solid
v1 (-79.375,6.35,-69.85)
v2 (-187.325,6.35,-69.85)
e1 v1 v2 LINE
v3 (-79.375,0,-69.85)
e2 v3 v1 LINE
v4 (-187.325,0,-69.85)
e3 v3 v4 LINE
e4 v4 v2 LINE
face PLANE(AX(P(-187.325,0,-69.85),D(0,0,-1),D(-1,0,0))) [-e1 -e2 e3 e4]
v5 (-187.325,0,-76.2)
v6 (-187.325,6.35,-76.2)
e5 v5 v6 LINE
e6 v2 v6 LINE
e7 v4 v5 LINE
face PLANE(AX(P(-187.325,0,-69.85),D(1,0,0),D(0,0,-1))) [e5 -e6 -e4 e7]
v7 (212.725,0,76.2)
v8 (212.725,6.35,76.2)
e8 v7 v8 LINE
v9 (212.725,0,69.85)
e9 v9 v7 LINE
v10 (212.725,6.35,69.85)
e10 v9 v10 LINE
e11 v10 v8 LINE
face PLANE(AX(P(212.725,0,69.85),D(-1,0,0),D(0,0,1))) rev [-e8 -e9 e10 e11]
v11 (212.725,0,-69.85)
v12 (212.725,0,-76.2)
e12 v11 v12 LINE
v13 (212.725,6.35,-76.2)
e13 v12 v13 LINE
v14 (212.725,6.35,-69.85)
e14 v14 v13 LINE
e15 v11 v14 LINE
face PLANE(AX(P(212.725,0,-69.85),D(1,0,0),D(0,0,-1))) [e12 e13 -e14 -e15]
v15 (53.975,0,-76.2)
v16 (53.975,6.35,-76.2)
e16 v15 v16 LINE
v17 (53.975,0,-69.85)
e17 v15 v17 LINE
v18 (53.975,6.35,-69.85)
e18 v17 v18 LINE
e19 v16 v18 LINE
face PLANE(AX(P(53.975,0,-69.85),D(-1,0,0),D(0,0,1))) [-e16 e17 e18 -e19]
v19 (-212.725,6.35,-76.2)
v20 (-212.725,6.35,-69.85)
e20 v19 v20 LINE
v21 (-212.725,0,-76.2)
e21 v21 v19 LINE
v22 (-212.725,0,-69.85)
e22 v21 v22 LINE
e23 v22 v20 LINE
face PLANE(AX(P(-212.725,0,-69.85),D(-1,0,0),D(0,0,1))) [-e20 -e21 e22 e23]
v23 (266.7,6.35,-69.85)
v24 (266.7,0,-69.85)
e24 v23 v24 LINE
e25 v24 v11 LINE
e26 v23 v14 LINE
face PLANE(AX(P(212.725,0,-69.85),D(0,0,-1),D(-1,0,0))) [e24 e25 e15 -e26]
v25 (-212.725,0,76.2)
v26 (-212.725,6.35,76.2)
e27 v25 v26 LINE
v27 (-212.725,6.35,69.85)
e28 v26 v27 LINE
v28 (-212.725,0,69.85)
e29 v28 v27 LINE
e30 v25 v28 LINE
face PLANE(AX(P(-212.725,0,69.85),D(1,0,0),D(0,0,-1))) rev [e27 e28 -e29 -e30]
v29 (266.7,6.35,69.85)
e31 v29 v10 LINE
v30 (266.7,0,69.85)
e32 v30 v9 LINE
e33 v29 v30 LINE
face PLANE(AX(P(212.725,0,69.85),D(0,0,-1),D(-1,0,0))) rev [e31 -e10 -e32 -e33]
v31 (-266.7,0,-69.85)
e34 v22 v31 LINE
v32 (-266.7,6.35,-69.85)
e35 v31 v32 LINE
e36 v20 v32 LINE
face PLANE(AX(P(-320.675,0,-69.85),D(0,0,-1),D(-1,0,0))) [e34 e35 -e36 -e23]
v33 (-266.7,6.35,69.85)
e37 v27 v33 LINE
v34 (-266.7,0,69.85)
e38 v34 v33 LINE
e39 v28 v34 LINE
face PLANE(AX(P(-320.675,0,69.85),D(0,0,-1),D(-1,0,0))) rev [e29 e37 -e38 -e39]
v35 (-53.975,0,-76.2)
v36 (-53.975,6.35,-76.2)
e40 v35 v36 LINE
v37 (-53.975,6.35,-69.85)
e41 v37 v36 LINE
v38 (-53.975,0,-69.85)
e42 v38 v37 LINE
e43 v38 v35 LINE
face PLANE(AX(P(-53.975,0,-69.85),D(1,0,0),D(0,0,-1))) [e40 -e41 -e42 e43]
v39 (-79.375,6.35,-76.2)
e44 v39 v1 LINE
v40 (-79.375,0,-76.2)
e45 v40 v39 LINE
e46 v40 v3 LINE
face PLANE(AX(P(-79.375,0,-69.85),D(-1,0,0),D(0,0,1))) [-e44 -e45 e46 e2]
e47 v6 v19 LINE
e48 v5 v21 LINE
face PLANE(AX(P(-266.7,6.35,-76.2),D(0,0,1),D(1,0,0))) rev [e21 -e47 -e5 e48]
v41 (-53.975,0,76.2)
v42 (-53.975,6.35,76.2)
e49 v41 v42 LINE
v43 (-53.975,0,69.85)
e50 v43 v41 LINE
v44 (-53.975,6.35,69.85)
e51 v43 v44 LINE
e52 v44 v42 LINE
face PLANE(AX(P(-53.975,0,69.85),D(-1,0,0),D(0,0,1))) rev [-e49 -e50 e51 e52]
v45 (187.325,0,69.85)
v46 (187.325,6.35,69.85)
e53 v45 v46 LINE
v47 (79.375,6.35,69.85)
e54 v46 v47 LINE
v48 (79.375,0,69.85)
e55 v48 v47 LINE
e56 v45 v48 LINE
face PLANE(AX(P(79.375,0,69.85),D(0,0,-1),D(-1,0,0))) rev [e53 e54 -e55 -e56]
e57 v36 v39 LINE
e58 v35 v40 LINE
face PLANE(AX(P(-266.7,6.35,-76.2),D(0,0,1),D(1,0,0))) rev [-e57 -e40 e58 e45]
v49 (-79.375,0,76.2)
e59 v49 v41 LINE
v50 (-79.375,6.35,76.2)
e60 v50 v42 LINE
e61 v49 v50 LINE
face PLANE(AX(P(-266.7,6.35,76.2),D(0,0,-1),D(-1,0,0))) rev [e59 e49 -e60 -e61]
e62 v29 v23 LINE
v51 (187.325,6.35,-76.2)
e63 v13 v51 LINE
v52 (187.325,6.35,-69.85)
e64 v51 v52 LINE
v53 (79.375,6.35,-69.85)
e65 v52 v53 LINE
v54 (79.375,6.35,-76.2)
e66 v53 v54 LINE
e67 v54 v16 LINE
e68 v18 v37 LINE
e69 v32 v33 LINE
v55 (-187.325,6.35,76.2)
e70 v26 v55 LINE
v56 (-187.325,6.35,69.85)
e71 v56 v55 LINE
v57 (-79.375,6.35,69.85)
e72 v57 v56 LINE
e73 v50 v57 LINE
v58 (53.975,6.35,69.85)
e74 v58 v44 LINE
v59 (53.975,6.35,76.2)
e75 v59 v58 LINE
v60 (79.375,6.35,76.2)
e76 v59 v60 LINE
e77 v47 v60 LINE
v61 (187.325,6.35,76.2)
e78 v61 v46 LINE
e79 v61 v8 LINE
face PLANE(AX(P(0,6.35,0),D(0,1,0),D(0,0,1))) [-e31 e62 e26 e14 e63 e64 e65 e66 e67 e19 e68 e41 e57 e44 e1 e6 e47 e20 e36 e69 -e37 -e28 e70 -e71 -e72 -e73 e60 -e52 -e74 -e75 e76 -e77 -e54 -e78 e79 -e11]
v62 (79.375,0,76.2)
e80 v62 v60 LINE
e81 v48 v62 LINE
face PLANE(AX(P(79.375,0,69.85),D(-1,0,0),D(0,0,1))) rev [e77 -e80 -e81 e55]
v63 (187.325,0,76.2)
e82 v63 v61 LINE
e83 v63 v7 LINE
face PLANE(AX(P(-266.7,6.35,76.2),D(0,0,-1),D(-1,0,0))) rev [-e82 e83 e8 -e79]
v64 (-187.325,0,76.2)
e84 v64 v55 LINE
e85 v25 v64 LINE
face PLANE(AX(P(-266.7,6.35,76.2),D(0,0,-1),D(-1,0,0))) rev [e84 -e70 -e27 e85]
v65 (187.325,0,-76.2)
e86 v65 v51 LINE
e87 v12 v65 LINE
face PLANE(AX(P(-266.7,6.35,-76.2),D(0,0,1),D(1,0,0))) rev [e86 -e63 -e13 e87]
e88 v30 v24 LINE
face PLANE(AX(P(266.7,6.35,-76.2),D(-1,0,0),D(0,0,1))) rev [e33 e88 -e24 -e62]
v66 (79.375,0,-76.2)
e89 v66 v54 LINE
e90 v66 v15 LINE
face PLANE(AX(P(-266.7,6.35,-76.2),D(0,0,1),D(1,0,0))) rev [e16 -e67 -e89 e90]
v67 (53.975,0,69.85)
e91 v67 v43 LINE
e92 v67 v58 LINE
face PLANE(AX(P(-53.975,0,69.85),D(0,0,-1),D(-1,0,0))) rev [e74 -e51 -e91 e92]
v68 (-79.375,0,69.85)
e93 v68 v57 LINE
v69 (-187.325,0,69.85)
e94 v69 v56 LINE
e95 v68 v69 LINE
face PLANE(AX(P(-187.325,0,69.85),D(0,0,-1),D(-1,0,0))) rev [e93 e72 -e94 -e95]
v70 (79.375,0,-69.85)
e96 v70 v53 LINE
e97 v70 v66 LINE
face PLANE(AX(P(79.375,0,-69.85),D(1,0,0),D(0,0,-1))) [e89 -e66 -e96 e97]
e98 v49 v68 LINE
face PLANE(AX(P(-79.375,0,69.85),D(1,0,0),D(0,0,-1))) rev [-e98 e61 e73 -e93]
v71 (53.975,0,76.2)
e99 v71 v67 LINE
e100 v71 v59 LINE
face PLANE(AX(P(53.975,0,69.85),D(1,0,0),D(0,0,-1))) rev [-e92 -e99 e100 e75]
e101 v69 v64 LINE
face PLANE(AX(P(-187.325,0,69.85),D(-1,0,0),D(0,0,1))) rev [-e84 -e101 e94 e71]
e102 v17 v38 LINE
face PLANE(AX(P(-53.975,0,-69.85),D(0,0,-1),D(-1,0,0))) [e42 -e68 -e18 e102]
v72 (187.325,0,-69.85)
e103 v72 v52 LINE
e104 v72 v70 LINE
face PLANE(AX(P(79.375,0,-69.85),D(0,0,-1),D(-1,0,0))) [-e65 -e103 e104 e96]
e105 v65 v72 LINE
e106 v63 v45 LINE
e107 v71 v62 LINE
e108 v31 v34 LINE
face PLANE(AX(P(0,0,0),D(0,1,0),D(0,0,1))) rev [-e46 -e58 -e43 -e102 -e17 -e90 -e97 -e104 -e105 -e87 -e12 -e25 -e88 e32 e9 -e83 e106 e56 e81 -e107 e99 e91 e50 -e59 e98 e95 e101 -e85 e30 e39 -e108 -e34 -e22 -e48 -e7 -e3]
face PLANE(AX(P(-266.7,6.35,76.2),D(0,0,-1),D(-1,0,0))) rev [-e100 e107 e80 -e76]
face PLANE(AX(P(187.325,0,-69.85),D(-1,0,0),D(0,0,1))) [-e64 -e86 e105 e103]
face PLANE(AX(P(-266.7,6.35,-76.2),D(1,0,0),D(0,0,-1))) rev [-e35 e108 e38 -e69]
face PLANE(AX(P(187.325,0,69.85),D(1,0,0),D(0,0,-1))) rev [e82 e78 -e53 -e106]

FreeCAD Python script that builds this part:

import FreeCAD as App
import Part
import Sketcher

V = App.Vector
Q = App.Units.Quantity

doc = App.newDocument("Part")
body = doc.addObject("PartDesign::Body", "Body")

sketch1 = doc.addObject("Sketcher::SketchObject", "Sketch")
body.addObject(sketch1)
sketch1.AttachmentSupport = (doc.XZ_Plane, [""])
sketch1.MapMode = "FlatFace"
sketch1.addGeometry(Part.LineSegment(V(-267, -76, 0), V(-267, 76, 0)), False)
sketch1.addGeometry(Part.LineSegment(V(-267, 76, 0), V(267, 76, 0)), False)
sketch1.addGeometry(Part.LineSegment(V(267, 76, 0), V(267, -76, 0)), False)
sketch1.addGeometry(Part.LineSegment(V(267, -76, 0), V(-267, -76, 0)), False)
sketch1.addConstraint(Sketcher.Constraint("Coincident", 0, 2, 1, 1))
sketch1.addConstraint(Sketcher.Constraint("Coincident", 1, 2, 2, 1))
sketch1.addConstraint(Sketcher.Constraint("Coincident", 2, 2, 3, 1))
sketch1.addConstraint(Sketcher.Constraint("Coincident", 3, 2, 0, 1))
sketch1.addConstraint(Sketcher.Constraint("Vertical", 0))
sketch1.addConstraint(Sketcher.Constraint("Horizontal", 1))
sketch1.addConstraint(Sketcher.Constraint("Vertical", 2))
sketch1.addConstraint(Sketcher.Constraint("Horizontal", 3))
sketch1.addConstraint(Sketcher.Constraint("Symmetric", 0, 2, 2, 2, -1, 1))
sketch1.addConstraint(Sketcher.Constraint("DistanceX", 1, 1, 1, 2, Q("21 in")))
sketch1.addConstraint(Sketcher.Constraint("DistanceY", 0, 1, 0, 2, Q("6 in")))
pad1 = doc.addObject("PartDesign::Pad", "Pad")
body.addObject(pad1)
pad1.Profile = sketch1
pad1.Length = Q("0.25 in")
pad1.Reversed = True

sketch2 = doc.addObject("Sketcher::SketchObject", "Sketch001")
body.addObject(sketch2)
sketch2.AttachmentSupport = (doc.XZ_Plane, [""])
sketch2.MapMode = "FlatFace"
sketch2.AttachmentOffset = App.Placement(V(0, 0, -0.25 * 25.4), App.Rotation())
sketch2.addGeometry(Part.LineSegment(V(-54, 70, 0), V(-54, 76, 0)), False)
sketch2.addGeometry(Part.LineSegment(V(-54, 76, 0), V(54, 76, 0)), False)
sketch2.addGeometry(Part.LineSegment(V(54, 76, 0), V(54, 70, 0)), False)
sketch2.addGeometry(Part.LineSegment(V(54, 70, 0), V(-54, 70, 0)), False)
sketch2.addConstraint(Sketcher.Constraint("Coincident", 0, 2, 1, 1))
sketch2.addConstraint(Sketcher.Constraint("Coincident", 1, 2, 2, 1))
sketch2.addConstraint(Sketcher.Constraint("Coincident", 2, 2, 3, 1))
sketch2.addConstraint(Sketcher.Constraint("Coincident", 3, 2, 0, 1))
sketch2.addConstraint(Sketcher.Constraint("Vertical", 0))
sketch2.addConstraint(Sketcher.Constraint("Horizontal", 1))
sketch2.addConstraint(Sketcher.Constraint("Vertical", 2))
sketch2.addConstraint(Sketcher.Constraint("Horizontal", 3))
sketch2.addConstraint(Sketcher.Constraint("DistanceY", -1, 1, 0, 2, Q("3 in")))
sketch2.addConstraint(Sketcher.Constraint("DistanceX", 1, 1, 1, 2, Q("4.25 in")))
sketch2.addConstraint(Sketcher.Constraint("DistanceY", 0, 1, 0, 2, Q("0.25 in")))
sketch2.addConstraint(Sketcher.Constraint("DistanceX", 0, 2, -1, 1, Q("2.125 in")))
pocket1 = doc.addObject("PartDesign::Pocket", "Pocket")
body.addObject(pocket1)
pocket1.Profile = sketch2
pocket1.Type = "ThroughAll"
pocket1.Reversed = True
doc.recompute()

linearpattern = doc.addObject("PartDesign::LinearPattern", "LinearPattern")
body.addObject(linearpattern)
linearpattern.Originals = [pocket1]
linearpattern.Direction = (doc.X_Axis, [""])
linearpattern.Mode = "offset"
linearpattern.Offset = Q("5.25 in")
linearpattern.Occurrences = 3
linearpattern.Reversed = True
body.Tip = linearpattern
doc.recompute()

linearpattern2 = doc.addObject("PartDesign::LinearPattern", "LinearPattern001")
body.addObject(linearpattern2)
linearpattern2.Originals = [pocket1]
linearpattern2.Direction = (doc.X_Axis, [""])
linearpattern2.Mode = "offset"
linearpattern2.Offset = Q("5.25 in")
linearpattern2.Occurrences = 3
body.Tip = linearpattern2
doc.recompute()

mirrored = doc.addObject("PartDesign::Mirrored", "Mirrored")
body.addObject(mirrored)
mirrored.Originals = [pocket1]
mirrored.MirrorPlane = (doc.XY_Plane, [""])
body.Tip = mirrored

sketch3 = doc.addObject("Sketcher::SketchObject", "Sketch002")
body.addObject(sketch3)
sketch3.AttachmentSupport = (doc.XZ_Plane, [""])
sketch3.MapMode = "FlatFace"
sketch3.AttachmentOffset = App.Placement(V(0, 0, -0.25 * 25.4), App.Rotation())
sketch3.addGeometry(Part.LineSegment(V(-187, -76, 0), V(-187, -70, 0)), False)
sketch3.addGeometry(Part.LineSegment(V(-187, -70, 0), V(-79, -70, 0)), False)
sketch3.addGeometry(Part.LineSegment(V(-79, -70, 0), V(-79, -76, 0)), False)
sketch3.addGeometry(Part.LineSegment(V(-79, -76, 0), V(-187, -76, 0)), False)
sketch3.addConstraint(Sketcher.Constraint("Coincident", 0, 2, 1, 1))
sketch3.addConstraint(Sketcher.Constraint("Coincident", 1, 2, 2, 1))
sketch3.addConstraint(Sketcher.Constraint("Coincident", 2, 2, 3, 1))
sketch3.addConstraint(Sketcher.Constraint("Coincident", 3, 2, 0, 1))
sketch3.addConstraint(Sketcher.Constraint("Vertical", 0))
sketch3.addConstraint(Sketcher.Constraint("Horizontal", 1))
sketch3.addConstraint(Sketcher.Constraint("Vertical", 2))
sketch3.addConstraint(Sketcher.Constraint("Horizontal", 3))
sketch3.addConstraint(Sketcher.Constraint("DistanceY", 2, 2, -1, 1, Q("3 in")))
sketch3.addConstraint(Sketcher.Constraint("DistanceX", 1, 1, 1, 2, Q("4.25 in")))
sketch3.addConstraint(Sketcher.Constraint("DistanceY", 0, 1, 0, 2, Q("0.25 in")))
sketch3.addConstraint(Sketcher.Constraint("DistanceX", 0, 2, -1, 1, Q("7.375 in")))
pocket2 = doc.addObject("PartDesign::Pocket", "Pocket001")
body.addObject(pocket2)
pocket2.Profile = sketch3
pocket2.Type = "ThroughAll"
pocket2.Reversed = True

sketch4 = doc.addObject("Sketcher::SketchObject", "Sketch003")
body.addObject(sketch4)
sketch4.AttachmentSupport = (doc.XZ_Plane, [""])
sketch4.MapMode = "FlatFace"
sketch4.AttachmentOffset = App.Placement(V(0, 0, -0.25 * 25.4), App.Rotation())
sketch4.addGeometry(Part.LineSegment(V(-321, -76, 0), V(-321, -70, 0)), False)
sketch4.addGeometry(Part.LineSegment(V(-321, -70, 0), V(-213, -70, 0)), False)
sketch4.addGeometry(Part.LineSegment(V(-213, -70, 0), V(-213, -76, 0)), False)
sketch4.addGeometry(Part.LineSegment(V(-213, -76, 0), V(-321, -76, 0)), False)
sketch4.addConstraint(Sketcher.Constraint("Coincident", 0, 2, 1, 1))
sketch4.addConstraint(Sketcher.Constraint("Coincident", 1, 2, 2, 1))
sketch4.addConstraint(Sketcher.Constraint("Coincident", 2, 2, 3, 1))
sketch4.addConstraint(Sketcher.Constraint("Coincident", 3, 2, 0, 1))
sketch4.addConstraint(Sketcher.Constraint("Vertical", 0))
sketch4.addConstraint(Sketcher.Constraint("Horizontal", 1))
sketch4.addConstraint(Sketcher.Constraint("Vertical", 2))
sketch4.addConstraint(Sketcher.Constraint("Horizontal", 3))
sketch4.addConstraint(Sketcher.Constraint("DistanceY", 2, 2, -1, 1, Q("3 in")))
sketch4.addConstraint(Sketcher.Constraint("DistanceX", 1, 1, 1, 2, Q("4.25 in")))
sketch4.addConstraint(Sketcher.Constraint("DistanceY", 0, 1, 0, 2, Q("0.25 in")))
sketch4.addConstraint(Sketcher.Constraint("DistanceX", 0, 2, -1, 1, Q("12.625 in")))
pocket3 = doc.addObject("PartDesign::Pocket", "Pocket002")
body.addObject(pocket3)
pocket3.Profile = sketch4
pocket3.Type = "ThroughAll"
pocket3.Reversed = True

sketch5 = doc.addObject("Sketcher::SketchObject", "Sketch004")
body.addObject(sketch5)
sketch5.AttachmentSupport = (doc.XZ_Plane, [""])
sketch5.MapMode = "FlatFace"
sketch5.AttachmentOffset = App.Placement(V(0, 0, -0.25 * 25.4), App.Rotation())
sketch5.addGeometry(Part.LineSegment(V(79, -76, 0), V(79, -70, 0)), False)
sketch5.addGeometry(Part.LineSegment(V(79, -70, 0), V(187, -70, 0)), False)
sketch5.addGeometry(Part.LineSegment(V(187, -70, 0), V(187, -76, 0)), False)
sketch5.addGeometry(Part.LineSegment(V(187, -76, 0), V(79, -76, 0)), False)
sketch5.addConstraint(Sketcher.Constraint("Coincident", 0, 2, 1, 1))
sketch5.addConstraint(Sketcher.Constraint("Coincident", 1, 2, 2, 1))
sketch5.addConstraint(Sketcher.Constraint("Coincident", 2, 2, 3, 1))
sketch5.addConstraint(Sketcher.Constraint("Coincident", 3, 2, 0, 1))
sketch5.addConstraint(Sketcher.Constraint("Vertical", 0))
sketch5.addConstraint(Sketcher.Constraint("Horizontal", 1))
sketch5.addConstraint(Sketcher.Constraint("Vertical", 2))
sketch5.addConstraint(Sketcher.Constraint("Horizontal", 3))
sketch5.addConstraint(Sketcher.Constraint("DistanceY", 2, 2, -1, 1, Q("3 in")))
sketch5.addConstraint(Sketcher.Constraint("DistanceX", 1, 1, 1, 2, Q("4.25 in")))
sketch5.addConstraint(Sketcher.Constraint("DistanceY", 0, 1, 0, 2, Q("0.25 in")))
sketch5.addConstraint(Sketcher.Constraint("DistanceX", -1, 1, 0, 2, Q("3.125 in")))
pocket4 = doc.addObject("PartDesign::Pocket", "Pocket003")
body.addObject(pocket4)
pocket4.Profile = sketch5
pocket4.Type = "ThroughAll"
pocket4.Reversed = True

sketch6 = doc.addObject("Sketcher::SketchObject", "Sketch005")
body.addObject(sketch6)
sketch6.AttachmentSupport = (doc.XZ_Plane, [""])
sketch6.MapMode = "FlatFace"
sketch6.AttachmentOffset = App.Placement(V(0, 0, -0.25 * 25.4), App.Rotation())
sketch6.addGeometry(Part.LineSegment(V(213, -76, 0), V(213, -70, 0)), False)
sketch6.addGeometry(Part.LineSegment(V(213, -70, 0), V(321, -70, 0)), False)
sketch6.addGeometry(Part.LineSegment(V(321, -70, 0), V(321, -76, 0)), False)
sketch6.addGeometry(Part.LineSegment(V(321, -76, 0), V(213, -76, 0)), False)
sketch6.addConstraint(Sketcher.Constraint("Coincident", 0, 2, 1, 1))
sketch6.addConstraint(Sketcher.Constraint("Coincident", 1, 2, 2, 1))
sketch6.addConstraint(Sketcher.Constraint("Coincident", 2, 2, 3, 1))
sketch6.addConstraint(Sketcher.Constraint("Coincident", 3, 2, 0, 1))
sketch6.addConstraint(Sketcher.Constraint("Vertical", 0))
sketch6.addConstraint(Sketcher.Constraint("Horizontal", 1))
sketch6.addConstraint(Sketcher.Constraint("Vertical", 2))
sketch6.addConstraint(Sketcher.Constraint("Horizontal", 3))
sketch6.addConstraint(Sketcher.Constraint("DistanceY", 2, 2, -1, 1, Q("3 in")))
sketch6.addConstraint(Sketcher.Constraint("DistanceX", 1, 1, 1, 2, Q("4.25 in")))
sketch6.addConstraint(Sketcher.Constraint("DistanceY", 0, 1, 0, 2, Q("0.25 in")))
sketch6.addConstraint(Sketcher.Constraint("DistanceX", -1, 1, 0, 2, Q("8.375 in")))
pocket5 = doc.addObject("PartDesign::Pocket", "Pocket004")
body.addObject(pocket5)
pocket5.Profile = sketch6
pocket5.Type = "ThroughAll"
pocket5.Reversed = True

doc.recompute()
